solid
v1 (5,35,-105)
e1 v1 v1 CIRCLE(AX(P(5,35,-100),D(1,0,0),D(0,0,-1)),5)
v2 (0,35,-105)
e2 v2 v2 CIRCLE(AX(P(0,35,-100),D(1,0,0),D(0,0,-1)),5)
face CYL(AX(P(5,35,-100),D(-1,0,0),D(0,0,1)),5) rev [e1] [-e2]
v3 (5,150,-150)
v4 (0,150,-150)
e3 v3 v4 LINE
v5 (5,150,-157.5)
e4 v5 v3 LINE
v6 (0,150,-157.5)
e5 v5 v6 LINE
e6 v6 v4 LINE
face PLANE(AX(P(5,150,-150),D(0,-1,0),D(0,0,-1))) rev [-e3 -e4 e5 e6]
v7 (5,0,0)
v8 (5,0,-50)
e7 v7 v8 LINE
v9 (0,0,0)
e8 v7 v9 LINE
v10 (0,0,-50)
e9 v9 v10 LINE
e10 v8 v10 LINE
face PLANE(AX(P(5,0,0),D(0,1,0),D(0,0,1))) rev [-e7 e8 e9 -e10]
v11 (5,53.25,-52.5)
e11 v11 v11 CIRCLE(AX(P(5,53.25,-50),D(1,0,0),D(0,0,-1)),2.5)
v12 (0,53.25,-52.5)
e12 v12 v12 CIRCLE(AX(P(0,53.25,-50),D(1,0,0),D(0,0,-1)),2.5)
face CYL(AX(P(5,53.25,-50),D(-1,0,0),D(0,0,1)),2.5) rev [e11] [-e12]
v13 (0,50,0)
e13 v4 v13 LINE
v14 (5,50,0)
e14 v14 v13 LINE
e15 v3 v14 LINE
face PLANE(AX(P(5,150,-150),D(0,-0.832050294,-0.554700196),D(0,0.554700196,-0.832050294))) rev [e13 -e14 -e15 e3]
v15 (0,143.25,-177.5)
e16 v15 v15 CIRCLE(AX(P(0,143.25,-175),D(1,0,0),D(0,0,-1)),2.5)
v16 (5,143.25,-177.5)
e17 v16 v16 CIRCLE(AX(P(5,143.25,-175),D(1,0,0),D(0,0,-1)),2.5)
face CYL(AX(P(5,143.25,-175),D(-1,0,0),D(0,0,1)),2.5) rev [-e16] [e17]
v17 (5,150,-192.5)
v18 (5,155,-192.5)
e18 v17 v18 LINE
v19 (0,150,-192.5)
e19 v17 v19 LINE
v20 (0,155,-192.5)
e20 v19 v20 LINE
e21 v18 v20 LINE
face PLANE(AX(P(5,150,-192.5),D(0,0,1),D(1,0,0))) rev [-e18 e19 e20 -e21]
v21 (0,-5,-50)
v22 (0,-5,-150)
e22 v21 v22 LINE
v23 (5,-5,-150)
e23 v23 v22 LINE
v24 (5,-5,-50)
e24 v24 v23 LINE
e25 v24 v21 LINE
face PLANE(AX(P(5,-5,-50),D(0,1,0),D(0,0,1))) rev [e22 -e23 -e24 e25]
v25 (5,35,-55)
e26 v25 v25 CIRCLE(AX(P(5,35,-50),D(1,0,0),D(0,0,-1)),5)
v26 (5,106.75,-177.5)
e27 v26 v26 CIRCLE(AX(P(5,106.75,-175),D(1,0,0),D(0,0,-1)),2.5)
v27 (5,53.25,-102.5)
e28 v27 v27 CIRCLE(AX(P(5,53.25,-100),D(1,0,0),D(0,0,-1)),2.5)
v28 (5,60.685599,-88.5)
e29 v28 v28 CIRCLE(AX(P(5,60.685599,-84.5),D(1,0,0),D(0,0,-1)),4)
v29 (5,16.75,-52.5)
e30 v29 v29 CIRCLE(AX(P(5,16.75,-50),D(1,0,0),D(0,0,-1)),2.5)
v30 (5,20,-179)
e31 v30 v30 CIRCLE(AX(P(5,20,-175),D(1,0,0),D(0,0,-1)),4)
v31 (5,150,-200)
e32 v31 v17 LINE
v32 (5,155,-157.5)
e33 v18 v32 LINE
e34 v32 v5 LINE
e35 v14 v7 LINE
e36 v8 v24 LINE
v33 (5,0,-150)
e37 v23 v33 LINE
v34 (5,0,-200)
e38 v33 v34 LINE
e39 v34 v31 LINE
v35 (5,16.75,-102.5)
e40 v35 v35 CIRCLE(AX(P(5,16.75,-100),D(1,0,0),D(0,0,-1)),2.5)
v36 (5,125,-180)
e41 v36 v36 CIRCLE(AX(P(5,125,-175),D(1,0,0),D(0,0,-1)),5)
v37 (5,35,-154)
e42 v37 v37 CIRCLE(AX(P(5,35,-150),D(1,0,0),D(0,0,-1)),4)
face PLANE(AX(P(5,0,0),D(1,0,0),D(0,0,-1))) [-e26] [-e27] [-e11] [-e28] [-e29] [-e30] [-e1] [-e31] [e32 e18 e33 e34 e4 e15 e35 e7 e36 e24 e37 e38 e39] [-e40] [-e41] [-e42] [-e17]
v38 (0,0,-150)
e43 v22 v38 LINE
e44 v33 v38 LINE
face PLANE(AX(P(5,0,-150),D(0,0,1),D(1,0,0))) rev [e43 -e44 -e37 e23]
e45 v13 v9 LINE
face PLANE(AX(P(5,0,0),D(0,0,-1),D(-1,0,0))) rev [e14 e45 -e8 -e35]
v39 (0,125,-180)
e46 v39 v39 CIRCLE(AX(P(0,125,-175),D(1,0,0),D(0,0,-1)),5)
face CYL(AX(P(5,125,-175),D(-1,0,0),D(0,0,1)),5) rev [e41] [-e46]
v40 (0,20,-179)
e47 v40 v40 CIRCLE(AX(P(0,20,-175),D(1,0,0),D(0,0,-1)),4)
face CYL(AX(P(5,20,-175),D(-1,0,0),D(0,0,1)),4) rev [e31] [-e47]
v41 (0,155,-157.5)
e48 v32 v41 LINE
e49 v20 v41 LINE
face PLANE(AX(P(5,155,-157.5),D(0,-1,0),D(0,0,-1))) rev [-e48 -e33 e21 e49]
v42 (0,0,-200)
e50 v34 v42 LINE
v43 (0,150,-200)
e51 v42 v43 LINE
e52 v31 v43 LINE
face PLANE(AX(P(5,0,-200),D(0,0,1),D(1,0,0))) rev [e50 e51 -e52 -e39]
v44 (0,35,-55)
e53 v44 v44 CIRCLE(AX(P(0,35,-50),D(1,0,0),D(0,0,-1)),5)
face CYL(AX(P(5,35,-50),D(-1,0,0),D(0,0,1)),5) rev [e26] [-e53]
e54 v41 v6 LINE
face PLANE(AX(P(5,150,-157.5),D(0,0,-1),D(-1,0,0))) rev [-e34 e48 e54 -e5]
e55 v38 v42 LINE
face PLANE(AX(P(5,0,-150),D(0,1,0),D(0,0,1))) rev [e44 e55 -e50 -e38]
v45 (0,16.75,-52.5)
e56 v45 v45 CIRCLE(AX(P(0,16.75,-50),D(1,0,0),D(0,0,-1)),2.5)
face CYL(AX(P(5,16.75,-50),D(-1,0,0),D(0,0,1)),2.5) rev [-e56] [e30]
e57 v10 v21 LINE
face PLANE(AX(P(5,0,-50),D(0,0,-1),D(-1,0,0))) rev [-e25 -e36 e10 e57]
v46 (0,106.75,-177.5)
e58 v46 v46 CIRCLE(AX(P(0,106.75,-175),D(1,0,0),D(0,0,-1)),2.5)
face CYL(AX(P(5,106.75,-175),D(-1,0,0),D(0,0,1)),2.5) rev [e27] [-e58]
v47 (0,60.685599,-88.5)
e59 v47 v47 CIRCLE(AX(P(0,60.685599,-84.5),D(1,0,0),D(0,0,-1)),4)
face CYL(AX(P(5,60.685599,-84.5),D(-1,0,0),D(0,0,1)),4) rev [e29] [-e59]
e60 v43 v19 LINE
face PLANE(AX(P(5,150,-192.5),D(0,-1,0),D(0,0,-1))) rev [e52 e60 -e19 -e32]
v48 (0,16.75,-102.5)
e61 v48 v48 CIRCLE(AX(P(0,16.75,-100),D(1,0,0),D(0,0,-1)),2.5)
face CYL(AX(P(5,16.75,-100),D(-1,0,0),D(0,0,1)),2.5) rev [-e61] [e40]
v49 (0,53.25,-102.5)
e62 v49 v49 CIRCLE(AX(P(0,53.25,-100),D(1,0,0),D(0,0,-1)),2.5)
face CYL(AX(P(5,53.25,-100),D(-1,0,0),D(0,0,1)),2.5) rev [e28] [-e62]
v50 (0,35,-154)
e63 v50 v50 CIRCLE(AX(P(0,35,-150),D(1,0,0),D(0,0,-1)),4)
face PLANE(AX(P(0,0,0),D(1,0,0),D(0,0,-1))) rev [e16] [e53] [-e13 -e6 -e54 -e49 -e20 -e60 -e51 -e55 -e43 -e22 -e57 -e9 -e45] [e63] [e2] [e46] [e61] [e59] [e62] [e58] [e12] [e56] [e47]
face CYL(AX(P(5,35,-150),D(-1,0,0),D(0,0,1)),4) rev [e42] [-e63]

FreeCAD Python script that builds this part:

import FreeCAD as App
import Part
import Sketcher


def add_polygon(sketch, points):
    """Adds a closed chain of lines whose ends are joined by coincident constraints."""
    first, n = sketch.GeometryCount, len(points)
    for a, b in zip(points, points[1:] + points[:1]):
        sketch.addGeometry(Part.LineSegment(App.Vector(*a, 0), App.Vector(*b, 0)), False)
    for i in range(n):
        sketch.addConstraint(Sketcher.Constraint("Coincident", first + i, 2, first + (i + 1) % n, 1))

doc = App.newDocument("Part")
params = doc.addObject("Spreadsheet::Sheet", "Params")
for row, (alias, value) in enumerate([
    ("sketch1_diameter", "5 mm"),
    ("sketch1_diameter2", "10 mm"),
    ("sketch1_diameter3", "8 mm"),
    ("sketch1_width", "50 mm"),
    ("sketch1_width2", "5 mm"),
    ("pad1_length", "5 mm"),
], start=1):
    params.set(f"A{row}", alias)
    params.set(f"B{row}", "=" + value)
    params.setAlias(f"B{row}", alias)

body = doc.addObject("PartDesign::Body", "Body")

# Sketch on YZ plane
sketch1 = body.newObject("Sketcher::SketchObject", "Sketch")
sketch1.AttachmentSupport = (doc.getObject("YZ_Plane"), [""])
sketch1.MapMode = "FlatFace"
add_polygon(sketch1, [(150, -150), (50, 0), (0, 0), (0, -50), (-5, -50), (-5, -150), (0, -150), (0, -200), (150, -200), (150, -192.5), (155, -192.5), (155, -157.5), (150, -157.5)])  # lines 0-12
sketch1.addGeometry(Part.Circle(App.Vector(16.8, -50, 0), App.Vector(0, 0, 1), 2.5), False)  # 13
sketch1.addGeometry(Part.Circle(App.Vector(35, -50, 0), App.Vector(0, 0, 1), 5), False)  # 14
sketch1.addGeometry(Part.Circle(App.Vector(16.8, -100, 0), App.Vector(0, 0, 1), 2.5), False)  # 15
sketch1.addGeometry(Part.Circle(App.Vector(35, -100, 0), App.Vector(0, 0, 1), 5), False)  # 16
sketch1.addGeometry(Part.Circle(App.Vector(53.2, -50, 0), App.Vector(0, 0, 1), 2.5), False)  # 17
sketch1.addGeometry(Part.Circle(App.Vector(60.7, -84.5, 0), App.Vector(0, 0, 1), 4), False)  # 18
sketch1.addGeometry(Part.Circle(App.Vector(53.2, -100, 0), App.Vector(0, 0, 1), 2.5), False)  # 19
sketch1.addGeometry(Part.Circle(App.Vector(20, -175, 0), App.Vector(0, 0, 1), 4), False)  # 20
sketch1.addGeometry(Part.Circle(App.Vector(35, -150, 0), App.Vector(0, 0, 1), 4), False)  # 21
sketch1.addGeometry(Part.Circle(App.Vector(106.8, -175, 0), App.Vector(0, 0, 1), 2.5), False)  # 22
sketch1.addGeometry(Part.Circle(App.Vector(125, -175, 0), App.Vector(0, 0, 1), 5), False)  # 23
sketch1.addGeometry(Part.Circle(App.Vector(143.2, -175, 0), App.Vector(0, 0, 1), 2.5), False)  # 24
sketch1.addConstraint(Sketcher.Constraint("Horizontal", 1))
sketch1.addConstraint(Sketcher.Constraint("Vertical", 2))
sketch1.addConstraint(Sketcher.Constraint("Horizontal", 3))
sketch1.addConstraint(Sketcher.Constraint("Vertical", 4))
sketch1.addConstraint(Sketcher.Constraint("Horizontal", 5))
sketch1.addConstraint(Sketcher.Constraint("Vertical", 6))
sketch1.addConstraint(Sketcher.Constraint("Horizontal", 7))
sketch1.addConstraint(Sketcher.Constraint("Vertical", 8))
sketch1.addConstraint(Sketcher.Constraint("Horizontal", 9))
sketch1.addConstraint(Sketcher.Constraint("Vertical", 10))
sketch1.addConstraint(Sketcher.Constraint("Horizontal", 11))
sketch1.addConstraint(Sketcher.Constraint("Vertical", 12))
sketch1.addConstraint(Sketcher.Constraint("Coincident", 1, 2, -1, 1))
sketch1.addConstraint(Sketcher.Constraint("Equal", 13, 15))
sketch1.addConstraint(Sketcher.Constraint("Equal", 14, 16))
sketch1.addConstraint(Sketcher.Constraint("Equal", 15, 17))
sketch1.addConstraint(Sketcher.Constraint("Equal", 17, 19))
sketch1.addConstraint(Sketcher.Constraint("Equal", 18, 20))
sketch1.addConstraint(Sketcher.Constraint("Equal", 20, 21))
sketch1.addConstraint(Sketcher.Constraint("Equal", 19, 22))
sketch1.addConstraint(Sketcher.Constraint("Equal", 16, 23))
sketch1.addConstraint(Sketcher.Constraint("Equal", 22, 24))
sketch1.addConstraint(Sketcher.Constraint("PointOnObject", 5, 2, -2))
sketch1.addConstraint(Sketcher.Constraint("Horizontal", 13, 3, 14, 3))
sketch1.addConstraint(Sketcher.Constraint("Horizontal", 15, 3, 16, 3))
sketch1.addConstraint(Sketcher.Constraint("Horizontal", 14, 3, 17, 3))
sketch1.addConstraint(Sketcher.Constraint("Horizontal", 16, 3, 19, 3))
sketch1.addConstraint(Sketcher.Constraint("Horizontal", 20, 3, 22, 3))
sketch1.addConstraint(Sketcher.Constraint("Horizontal", 22, 3, 23, 3))
sketch1.addConstraint(Sketcher.Constraint("Horizontal", 23, 3, 24, 3))
sketch1.addConstraint(Sketcher.Constraint("Horizontal", 17, 3, 2, 2))
sketch1.addConstraint(Sketcher.Constraint("Horizontal", 21, 3, 4, 2))
sketch1.addConstraint(Sketcher.Constraint("Horizontal", 5, 2, 12, 2))
sketch1.addConstraint(Sketcher.Constraint("Vertical", 13, 3, 15, 3))
sketch1.addConstraint(Sketcher.Constraint("Vertical", 14, 3, 16, 3))
sketch1.addConstraint(Sketcher.Constraint("Vertical", 17, 3, 19, 3))
sketch1.addConstraint(Sketcher.Constraint("Vertical", 16, 3, 21, 3))
sketch1.addConstraint(Sketcher.Constraint("Vertical", 8, 2, 11, 2))
sketch1.addConstraint(Sketcher.Constraint("Equal", 5, 9))
sketch1.addConstraint(Sketcher.Constraint("Equal", 1, 2))
sketch1.addConstraint(Sketcher.Constraint("Equal", 2, 6))
sketch1.addConstraint(Sketcher.Constraint("Equal", 8, 12))
sketch1.addConstraint(Sketcher.Constraint("Diameter", 13, 5.0))
sketch1.addConstraint(Sketcher.Constraint("Diameter", 14, 10.0))
sketch1.addConstraint(Sketcher.Constraint("Diameter", 18, 8.0))
sketch1.addConstraint(Sketcher.Constraint("DistanceX", 1, 2, 1, 1, 50.0))
sketch1.addConstraint(Sketcher.Constraint("DistanceX", 3, 2, 3, 1, 5.0))
sketch1.addConstraint(Sketcher.Constraint("DistanceX", 7, 1, 7, 2, 150.0))
sketch1.addConstraint(Sketcher.Constraint("DistanceY", 4, 2, 4, 1, 100.0))
sketch1.addConstraint(Sketcher.Constraint("DistanceY", 10, 1, 10, 2, 35.0))
sketch1.addConstraint(Sketcher.Constraint("DistanceX", -1, 1, 14, 3, 35.0))
sketch1.addConstraint(Sketcher.Constraint("DistanceY", 15, 3, -1, 1, 100.0))
sketch1.addConstraint(Sketcher.Constraint("DistanceX", -1, 1, 20, 3, 20.0))
sketch1.addConstraint(Sketcher.Constraint("DistanceY", 20, 3, -1, 1, 175.0))
sketch1.addConstraint(Sketcher.Constraint("DistanceX", -1, 1, 23, 3, 125.0))
sketch1.addConstraint(Sketcher.Constraint("DistanceX", 19, 3, 24, 3, 90.0))
sketch1.addConstraint(Sketcher.Constraint("DistanceY", 18, 3, -1, 1, 84.5))
sketch1.addConstraint(Sketcher.Constraint("DistanceX", 13, 3, 17, 3, 36.5))
sketch1.addConstraint(Sketcher.Constraint("DistanceX", 19, 3, 22, 3, 53.5))
sketch1.addConstraint(Sketcher.Constraint("DistanceX", -1, 1, 13, 3, 16.75))
sketch1.addConstraint(Sketcher.Constraint("DistanceX", -1, 1, 18, 3, 60.685599))
sketch1.setExpression("Constraints[55]", "Params.sketch1_diameter")
sketch1.setExpression("Constraints[56]", "Params.sketch1_diameter2")
sketch1.setExpression("Constraints[57]", "Params.sketch1_diameter3")
sketch1.setExpression("Constraints[58]", "Params.sketch1_width")
sketch1.setExpression("Constraints[59]", "Params.sketch1_width2")
pad1 = body.newObject("PartDesign::Pad", "Pad")
pad1.Profile = sketch1
pad1.setExpression("Length", "Params.pad1_length")

doc.recompute()
